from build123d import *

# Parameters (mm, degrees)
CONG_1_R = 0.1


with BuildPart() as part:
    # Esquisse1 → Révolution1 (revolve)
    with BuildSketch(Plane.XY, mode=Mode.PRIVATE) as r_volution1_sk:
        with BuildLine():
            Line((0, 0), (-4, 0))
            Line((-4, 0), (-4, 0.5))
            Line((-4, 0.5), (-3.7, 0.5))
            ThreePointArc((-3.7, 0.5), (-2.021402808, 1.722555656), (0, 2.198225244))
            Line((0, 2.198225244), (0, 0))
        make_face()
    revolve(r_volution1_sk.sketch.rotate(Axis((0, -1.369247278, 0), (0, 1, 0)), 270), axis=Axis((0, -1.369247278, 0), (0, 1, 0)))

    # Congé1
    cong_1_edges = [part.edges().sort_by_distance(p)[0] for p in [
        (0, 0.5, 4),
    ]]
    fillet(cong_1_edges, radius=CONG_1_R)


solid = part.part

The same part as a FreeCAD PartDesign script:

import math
import FreeCAD as App
import Part
import Sketcher

V = App.Vector
Q = App.Units.Quantity


def edges_at(feature, points):
    """Names of the edges that pass closest to the given points."""
    edges = feature.Shape.Edges
    near = lambda p: min(range(len(edges)), key=lambda i: edges[i].distToShape(Part.Vertex(*p))[0])
    return sorted({f"Edge{near(p) + 1}" for p in points})

doc = App.newDocument("Part")
body = doc.addObject("PartDesign::Body", "Body")

# Sketch on XY plane
sketch1 = doc.addObject("Sketcher::SketchObject", "Sketch")
body.addObject(sketch1)
sketch1.AttachmentSupport = (doc.XY_Plane, [""])
sketch1.MapMode = "FlatFace"
sketch1.addGeometry([
    Part.LineSegment(V(-4, 0, 0), V(0, 0, 0)),  # 0
    Part.LineSegment(V(0, 0, 0), V(0, 2.2, 0)),  # 1
    Part.ArcOfCircle(Part.Circle(V(0.17, -3.05, 0), V(0, 0, 1), 5.25), math.radians(92), math.radians(137)),  # 2
    Part.LineSegment(V(-3.7, 0.5, 0), V(-4, 0.5, 0)),  # 3
    Part.LineSegment(V(-4, 0.5, 0), V(-4, 0, 0)),  # 4
], False)
sketch1.addConstraint([
    Sketcher.Constraint("Coincident", 0, 2, 1, 1),
    Sketcher.Constraint("Coincident", 1, 2, 2, 1),
    Sketcher.Constraint("Coincident", 2, 2, 3, 1),
    Sketcher.Constraint("Coincident", 3, 2, 4, 1),
    Sketcher.Constraint("Coincident", 4, 2, 0, 1),
    Sketcher.Constraint("Horizontal", 0),
    Sketcher.Constraint("Vertical", 1),
    Sketcher.Constraint("Horizontal", 3),
    Sketcher.Constraint("Vertical", 4),
    Sketcher.Constraint("Coincident", 0, 2, -1, 1),
    Sketcher.Constraint("DistanceX", 0, 1, 0, 2, Q("4 mm")),
    Sketcher.Constraint("DistanceX", 3, 2, 3, 1, Q("0.3 mm")),
    Sketcher.Constraint("DistanceY", 4, 2, 4, 1, Q("0.5 mm")),
    Sketcher.Constraint("Radius", 2, Q("5.247424 mm")),
    Sketcher.Constraint("DistanceY", 1, 1, 1, 2, Q("2.198225 mm")),
])
revolution = doc.addObject("PartDesign::Revolution", "Revolution")
body.addObject(revolution)
revolution.Profile = sketch1
revolution.ReferenceAxis = (sketch1, ["V_Axis"])
revolution.Angle = 360
doc.recompute()

fillet = doc.addObject("PartDesign::Fillet", "Fillet")
body.addObject(fillet)
fillet.Base = (revolution, edges_at(revolution, [(0, 0.5, 4)]))
fillet.Radius = 0.1

doc.recompute()
